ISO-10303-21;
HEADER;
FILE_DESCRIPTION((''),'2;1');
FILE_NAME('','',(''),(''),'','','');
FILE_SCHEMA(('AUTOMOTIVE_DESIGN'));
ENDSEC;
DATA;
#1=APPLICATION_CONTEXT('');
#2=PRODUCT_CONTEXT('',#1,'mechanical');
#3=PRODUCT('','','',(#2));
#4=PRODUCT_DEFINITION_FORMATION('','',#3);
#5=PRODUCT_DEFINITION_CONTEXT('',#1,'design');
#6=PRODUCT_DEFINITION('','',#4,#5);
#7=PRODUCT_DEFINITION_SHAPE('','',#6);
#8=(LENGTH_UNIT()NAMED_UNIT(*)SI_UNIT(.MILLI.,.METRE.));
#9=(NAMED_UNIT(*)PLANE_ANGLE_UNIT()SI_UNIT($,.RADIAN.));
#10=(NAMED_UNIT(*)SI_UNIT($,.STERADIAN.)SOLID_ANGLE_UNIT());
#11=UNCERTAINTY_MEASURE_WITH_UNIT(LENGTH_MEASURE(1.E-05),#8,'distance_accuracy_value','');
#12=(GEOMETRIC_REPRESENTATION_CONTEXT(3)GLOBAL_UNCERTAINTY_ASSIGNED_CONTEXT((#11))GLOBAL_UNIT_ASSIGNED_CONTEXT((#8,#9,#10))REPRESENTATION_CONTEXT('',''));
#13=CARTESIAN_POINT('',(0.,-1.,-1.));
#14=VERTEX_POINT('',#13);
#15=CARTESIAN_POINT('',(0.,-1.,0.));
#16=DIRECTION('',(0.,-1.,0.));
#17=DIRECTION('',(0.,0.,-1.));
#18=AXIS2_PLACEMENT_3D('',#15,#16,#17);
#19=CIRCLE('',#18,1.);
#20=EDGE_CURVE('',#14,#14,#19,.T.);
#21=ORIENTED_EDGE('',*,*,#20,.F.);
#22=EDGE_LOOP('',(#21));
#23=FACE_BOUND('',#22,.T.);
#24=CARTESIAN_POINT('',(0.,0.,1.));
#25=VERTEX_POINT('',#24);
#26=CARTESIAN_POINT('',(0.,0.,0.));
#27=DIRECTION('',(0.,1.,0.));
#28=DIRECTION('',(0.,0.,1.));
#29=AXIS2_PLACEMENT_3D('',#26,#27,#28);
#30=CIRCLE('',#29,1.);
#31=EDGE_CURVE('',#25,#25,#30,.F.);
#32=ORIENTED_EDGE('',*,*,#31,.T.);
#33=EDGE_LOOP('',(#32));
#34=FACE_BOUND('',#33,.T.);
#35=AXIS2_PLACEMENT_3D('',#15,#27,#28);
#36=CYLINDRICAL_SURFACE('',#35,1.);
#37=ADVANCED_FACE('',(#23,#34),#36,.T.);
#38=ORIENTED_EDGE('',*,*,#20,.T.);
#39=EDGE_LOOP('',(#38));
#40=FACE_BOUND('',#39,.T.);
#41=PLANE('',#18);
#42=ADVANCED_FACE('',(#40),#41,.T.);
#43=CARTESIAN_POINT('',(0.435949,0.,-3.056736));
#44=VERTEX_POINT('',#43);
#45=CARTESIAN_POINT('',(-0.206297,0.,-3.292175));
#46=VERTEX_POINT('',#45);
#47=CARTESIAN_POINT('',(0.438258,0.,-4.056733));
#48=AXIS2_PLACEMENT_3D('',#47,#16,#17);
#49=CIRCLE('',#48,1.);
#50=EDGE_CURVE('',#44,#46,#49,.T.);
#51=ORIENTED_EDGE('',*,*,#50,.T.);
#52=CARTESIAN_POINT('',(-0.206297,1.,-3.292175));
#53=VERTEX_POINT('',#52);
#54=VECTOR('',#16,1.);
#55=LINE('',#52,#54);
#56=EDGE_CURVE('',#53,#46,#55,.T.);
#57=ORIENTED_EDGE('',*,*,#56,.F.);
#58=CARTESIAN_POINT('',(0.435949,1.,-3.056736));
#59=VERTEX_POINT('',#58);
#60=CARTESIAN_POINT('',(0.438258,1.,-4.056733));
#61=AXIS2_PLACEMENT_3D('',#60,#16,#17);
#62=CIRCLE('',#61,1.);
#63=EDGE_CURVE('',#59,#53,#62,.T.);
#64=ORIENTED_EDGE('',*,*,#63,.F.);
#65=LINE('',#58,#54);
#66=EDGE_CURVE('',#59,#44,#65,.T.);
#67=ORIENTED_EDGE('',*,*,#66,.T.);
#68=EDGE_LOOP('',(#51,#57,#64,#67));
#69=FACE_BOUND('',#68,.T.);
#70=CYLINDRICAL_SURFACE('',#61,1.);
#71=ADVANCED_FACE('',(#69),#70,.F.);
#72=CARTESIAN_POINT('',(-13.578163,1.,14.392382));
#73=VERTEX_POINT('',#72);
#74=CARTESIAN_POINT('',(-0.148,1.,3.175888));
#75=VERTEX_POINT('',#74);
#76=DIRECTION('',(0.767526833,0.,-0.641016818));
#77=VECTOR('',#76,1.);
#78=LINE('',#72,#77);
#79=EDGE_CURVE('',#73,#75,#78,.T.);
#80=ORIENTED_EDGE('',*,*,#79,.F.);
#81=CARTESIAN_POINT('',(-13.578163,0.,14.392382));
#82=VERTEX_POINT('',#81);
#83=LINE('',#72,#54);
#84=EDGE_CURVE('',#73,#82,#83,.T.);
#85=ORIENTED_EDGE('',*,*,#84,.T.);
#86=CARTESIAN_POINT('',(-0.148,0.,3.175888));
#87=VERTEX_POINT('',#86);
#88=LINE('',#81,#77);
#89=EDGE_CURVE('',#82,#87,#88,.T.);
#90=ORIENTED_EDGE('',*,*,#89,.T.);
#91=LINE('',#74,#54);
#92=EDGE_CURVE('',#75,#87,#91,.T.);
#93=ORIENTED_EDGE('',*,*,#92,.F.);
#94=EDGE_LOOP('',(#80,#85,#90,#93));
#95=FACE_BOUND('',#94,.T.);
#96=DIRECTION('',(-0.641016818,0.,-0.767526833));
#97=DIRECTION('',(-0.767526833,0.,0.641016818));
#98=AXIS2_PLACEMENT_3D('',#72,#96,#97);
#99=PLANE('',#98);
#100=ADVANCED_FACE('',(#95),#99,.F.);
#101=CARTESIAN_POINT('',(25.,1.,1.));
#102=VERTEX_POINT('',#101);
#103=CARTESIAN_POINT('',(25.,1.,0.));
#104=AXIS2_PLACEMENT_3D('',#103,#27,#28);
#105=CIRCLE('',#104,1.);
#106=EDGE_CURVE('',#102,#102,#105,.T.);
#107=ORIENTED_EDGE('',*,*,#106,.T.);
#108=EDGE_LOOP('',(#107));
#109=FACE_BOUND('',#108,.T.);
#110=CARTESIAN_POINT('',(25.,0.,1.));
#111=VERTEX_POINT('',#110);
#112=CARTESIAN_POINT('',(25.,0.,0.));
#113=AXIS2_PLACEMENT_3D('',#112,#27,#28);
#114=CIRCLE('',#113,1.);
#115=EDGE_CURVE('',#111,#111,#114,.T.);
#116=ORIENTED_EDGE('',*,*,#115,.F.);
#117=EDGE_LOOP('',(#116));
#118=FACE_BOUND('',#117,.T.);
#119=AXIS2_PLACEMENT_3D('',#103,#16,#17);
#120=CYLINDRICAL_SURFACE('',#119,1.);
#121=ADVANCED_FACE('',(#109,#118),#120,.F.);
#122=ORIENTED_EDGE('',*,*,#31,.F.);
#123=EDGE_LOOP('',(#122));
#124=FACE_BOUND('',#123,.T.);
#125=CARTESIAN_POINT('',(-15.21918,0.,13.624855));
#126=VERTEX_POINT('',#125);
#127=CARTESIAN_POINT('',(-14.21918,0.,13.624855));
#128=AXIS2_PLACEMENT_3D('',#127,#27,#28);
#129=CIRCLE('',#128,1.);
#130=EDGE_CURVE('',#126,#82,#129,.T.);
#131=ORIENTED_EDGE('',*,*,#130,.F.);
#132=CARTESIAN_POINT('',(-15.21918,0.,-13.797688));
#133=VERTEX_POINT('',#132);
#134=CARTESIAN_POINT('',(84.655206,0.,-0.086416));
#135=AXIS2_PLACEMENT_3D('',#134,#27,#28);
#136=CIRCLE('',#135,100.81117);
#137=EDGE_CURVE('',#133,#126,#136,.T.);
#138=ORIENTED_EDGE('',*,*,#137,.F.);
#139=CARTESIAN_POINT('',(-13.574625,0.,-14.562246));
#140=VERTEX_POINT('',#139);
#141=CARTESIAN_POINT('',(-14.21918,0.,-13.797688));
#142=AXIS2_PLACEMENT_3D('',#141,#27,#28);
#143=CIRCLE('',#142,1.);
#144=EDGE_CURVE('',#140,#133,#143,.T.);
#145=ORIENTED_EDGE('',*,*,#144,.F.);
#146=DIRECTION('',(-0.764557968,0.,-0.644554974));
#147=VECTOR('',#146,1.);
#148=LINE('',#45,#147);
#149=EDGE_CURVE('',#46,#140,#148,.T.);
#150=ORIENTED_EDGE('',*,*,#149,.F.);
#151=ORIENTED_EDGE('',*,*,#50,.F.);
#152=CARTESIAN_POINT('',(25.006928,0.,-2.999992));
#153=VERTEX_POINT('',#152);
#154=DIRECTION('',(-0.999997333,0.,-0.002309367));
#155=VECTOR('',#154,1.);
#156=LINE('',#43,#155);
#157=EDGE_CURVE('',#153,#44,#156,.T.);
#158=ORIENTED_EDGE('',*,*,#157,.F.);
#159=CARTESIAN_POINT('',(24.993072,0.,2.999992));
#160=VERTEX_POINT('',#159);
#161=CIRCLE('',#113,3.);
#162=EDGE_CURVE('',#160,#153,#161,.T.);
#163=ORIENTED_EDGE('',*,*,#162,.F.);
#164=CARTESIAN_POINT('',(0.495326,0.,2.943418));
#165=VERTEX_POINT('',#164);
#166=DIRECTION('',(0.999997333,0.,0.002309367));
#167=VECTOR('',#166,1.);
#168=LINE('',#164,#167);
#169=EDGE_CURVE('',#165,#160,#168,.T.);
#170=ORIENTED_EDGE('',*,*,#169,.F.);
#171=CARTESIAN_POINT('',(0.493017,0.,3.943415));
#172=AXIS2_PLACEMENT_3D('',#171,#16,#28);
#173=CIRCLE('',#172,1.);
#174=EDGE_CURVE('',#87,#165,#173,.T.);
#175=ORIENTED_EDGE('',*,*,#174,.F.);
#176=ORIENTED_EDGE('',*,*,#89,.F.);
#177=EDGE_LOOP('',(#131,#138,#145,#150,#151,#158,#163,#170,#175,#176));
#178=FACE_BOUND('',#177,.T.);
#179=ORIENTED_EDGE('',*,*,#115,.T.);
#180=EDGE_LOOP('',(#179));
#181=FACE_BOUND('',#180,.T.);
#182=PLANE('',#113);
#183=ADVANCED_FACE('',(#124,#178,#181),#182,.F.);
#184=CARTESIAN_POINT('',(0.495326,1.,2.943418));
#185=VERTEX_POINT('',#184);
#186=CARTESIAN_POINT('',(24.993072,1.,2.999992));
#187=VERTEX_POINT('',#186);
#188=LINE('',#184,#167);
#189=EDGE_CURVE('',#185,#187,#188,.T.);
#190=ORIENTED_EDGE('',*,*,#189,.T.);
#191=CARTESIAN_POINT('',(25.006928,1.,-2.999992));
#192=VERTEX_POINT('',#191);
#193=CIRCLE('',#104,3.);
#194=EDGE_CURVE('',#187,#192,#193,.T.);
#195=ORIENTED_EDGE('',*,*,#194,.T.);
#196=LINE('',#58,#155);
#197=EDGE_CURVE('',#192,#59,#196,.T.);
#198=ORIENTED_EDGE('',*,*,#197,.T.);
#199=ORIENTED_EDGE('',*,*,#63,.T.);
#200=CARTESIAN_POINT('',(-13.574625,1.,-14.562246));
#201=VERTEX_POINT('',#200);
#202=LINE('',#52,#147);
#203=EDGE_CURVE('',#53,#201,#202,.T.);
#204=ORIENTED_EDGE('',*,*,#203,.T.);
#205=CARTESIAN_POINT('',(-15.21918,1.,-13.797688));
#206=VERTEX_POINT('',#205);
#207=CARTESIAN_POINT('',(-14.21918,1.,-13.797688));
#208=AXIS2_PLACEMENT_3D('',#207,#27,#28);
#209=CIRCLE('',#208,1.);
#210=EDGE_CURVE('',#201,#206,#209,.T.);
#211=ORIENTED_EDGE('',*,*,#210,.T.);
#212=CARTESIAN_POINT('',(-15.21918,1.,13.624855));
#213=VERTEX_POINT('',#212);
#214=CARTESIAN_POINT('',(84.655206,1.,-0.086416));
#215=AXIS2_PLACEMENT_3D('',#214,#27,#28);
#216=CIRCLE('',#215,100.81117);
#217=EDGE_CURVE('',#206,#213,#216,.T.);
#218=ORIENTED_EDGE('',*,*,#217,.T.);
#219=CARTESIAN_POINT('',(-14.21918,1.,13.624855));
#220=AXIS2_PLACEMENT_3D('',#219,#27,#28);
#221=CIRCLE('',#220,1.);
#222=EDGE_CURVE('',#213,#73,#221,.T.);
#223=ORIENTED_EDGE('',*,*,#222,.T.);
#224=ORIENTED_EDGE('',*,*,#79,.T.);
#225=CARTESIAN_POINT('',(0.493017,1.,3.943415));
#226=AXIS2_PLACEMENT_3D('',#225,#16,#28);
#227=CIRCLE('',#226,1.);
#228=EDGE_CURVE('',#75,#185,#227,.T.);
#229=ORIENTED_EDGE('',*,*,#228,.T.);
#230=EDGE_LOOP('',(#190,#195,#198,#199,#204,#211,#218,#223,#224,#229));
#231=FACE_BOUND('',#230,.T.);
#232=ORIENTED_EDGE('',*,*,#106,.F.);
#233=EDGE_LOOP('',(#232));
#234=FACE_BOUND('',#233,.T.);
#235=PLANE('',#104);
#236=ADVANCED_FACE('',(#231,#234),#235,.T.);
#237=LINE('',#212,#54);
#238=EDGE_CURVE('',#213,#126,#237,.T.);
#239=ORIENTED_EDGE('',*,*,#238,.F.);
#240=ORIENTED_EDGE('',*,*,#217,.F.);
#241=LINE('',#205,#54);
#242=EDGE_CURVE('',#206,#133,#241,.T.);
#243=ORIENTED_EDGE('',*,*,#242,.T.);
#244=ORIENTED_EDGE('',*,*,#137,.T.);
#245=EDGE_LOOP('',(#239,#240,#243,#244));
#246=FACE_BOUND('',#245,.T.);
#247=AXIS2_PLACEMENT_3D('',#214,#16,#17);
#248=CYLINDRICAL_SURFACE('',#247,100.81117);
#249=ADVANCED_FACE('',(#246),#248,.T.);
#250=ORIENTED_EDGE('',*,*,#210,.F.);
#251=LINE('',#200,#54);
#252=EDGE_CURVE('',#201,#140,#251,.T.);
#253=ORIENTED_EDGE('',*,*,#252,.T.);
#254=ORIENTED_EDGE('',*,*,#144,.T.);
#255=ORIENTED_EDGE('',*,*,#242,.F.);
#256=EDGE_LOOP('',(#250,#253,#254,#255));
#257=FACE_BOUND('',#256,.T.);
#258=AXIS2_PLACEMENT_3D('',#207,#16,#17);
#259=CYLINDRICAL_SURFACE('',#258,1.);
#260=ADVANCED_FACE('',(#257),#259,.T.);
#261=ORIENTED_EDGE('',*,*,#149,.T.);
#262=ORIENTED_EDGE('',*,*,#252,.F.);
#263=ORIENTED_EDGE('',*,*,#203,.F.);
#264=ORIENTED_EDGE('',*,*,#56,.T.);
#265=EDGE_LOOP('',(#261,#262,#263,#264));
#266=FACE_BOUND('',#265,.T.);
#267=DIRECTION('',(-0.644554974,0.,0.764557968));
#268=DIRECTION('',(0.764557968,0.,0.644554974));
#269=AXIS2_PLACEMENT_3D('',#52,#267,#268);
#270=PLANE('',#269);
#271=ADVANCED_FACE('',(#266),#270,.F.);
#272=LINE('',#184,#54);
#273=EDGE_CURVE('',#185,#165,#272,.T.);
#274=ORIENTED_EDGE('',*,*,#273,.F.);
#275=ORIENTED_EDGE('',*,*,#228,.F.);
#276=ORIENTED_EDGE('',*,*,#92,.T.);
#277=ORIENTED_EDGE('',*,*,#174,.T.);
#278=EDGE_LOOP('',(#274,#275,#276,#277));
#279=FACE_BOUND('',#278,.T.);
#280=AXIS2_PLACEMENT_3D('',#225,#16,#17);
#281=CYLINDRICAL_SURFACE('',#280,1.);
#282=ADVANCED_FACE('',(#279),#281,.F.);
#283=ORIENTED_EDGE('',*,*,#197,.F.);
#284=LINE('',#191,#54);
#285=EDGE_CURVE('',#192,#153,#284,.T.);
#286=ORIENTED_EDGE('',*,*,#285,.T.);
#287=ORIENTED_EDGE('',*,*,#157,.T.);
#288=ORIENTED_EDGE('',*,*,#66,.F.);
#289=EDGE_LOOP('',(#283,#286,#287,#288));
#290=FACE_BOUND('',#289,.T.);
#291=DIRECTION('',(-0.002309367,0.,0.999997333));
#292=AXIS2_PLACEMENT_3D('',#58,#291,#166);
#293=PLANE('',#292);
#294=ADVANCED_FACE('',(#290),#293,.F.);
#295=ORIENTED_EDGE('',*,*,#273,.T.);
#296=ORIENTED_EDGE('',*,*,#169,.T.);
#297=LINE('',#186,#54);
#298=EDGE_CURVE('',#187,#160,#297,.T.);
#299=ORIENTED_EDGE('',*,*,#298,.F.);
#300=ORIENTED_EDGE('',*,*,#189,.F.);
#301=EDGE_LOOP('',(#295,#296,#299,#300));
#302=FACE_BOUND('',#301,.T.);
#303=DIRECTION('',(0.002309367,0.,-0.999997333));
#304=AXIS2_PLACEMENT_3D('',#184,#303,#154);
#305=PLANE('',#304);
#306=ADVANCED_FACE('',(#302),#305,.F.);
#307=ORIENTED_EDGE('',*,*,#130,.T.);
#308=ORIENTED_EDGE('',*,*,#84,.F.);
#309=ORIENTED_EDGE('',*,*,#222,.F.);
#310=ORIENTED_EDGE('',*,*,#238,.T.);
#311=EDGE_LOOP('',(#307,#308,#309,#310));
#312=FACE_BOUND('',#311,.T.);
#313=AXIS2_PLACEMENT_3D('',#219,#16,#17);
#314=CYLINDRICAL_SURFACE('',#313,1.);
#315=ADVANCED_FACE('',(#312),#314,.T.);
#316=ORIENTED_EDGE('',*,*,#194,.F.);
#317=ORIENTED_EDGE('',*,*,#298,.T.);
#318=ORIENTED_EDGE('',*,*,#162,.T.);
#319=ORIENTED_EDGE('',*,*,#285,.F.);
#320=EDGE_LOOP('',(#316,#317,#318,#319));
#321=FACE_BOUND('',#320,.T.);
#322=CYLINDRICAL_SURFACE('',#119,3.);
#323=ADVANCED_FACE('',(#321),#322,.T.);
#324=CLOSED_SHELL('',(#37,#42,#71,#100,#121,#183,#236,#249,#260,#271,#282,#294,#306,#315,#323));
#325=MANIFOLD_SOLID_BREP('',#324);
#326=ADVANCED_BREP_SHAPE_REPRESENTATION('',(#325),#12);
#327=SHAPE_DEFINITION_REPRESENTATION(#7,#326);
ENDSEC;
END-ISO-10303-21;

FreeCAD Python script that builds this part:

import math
import FreeCAD as App
import Part
import Sketcher

V = App.Vector

doc = App.newDocument("Part")
body = doc.addObject("PartDesign::Body", "Body")

sketch1 = doc.addObject("Sketcher::SketchObject", "Sketch")
body.addObject(sketch1)
sketch1.AttachmentSupport = (doc.XZ_Plane, [""])
sketch1.MapMode = "FlatFace"
sketch1.addGeometry(Part.LineSegment(V(25, -3, 0), V(0.4, -3.1, 0)), False)
sketch1.addGeometry(Part.ArcOfCircle(Part.Circle(V(0.4, -4.1, 0), V(0, 0, 1), 1), math.radians(90), math.radians(130)), False)
sketch1.addGeometry(Part.LineSegment(V(-0.2, -3.3, 0), V(-13.6, -14.6, 0)), False)
sketch1.addGeometry(Part.ArcOfCircle(Part.Circle(V(-14.2, -13.8, 0), V(0, 0, 1), 1), math.radians(180), math.radians(310)), False)
sketch1.addGeometry(Part.ArcOfCircle(Part.Circle(V(84.7, -0.1, 0), V(0, 0, 1), 100.8), math.radians(172.18), math.radians(187.82)), False)
sketch1.addGeometry(Part.ArcOfCircle(Part.Circle(V(-14.2, 13.6, 0), V(0, 0, 1), 1), math.radians(50), math.radians(180)), False)
sketch1.addGeometry(Part.LineSegment(V(-13.6, 14.4, 0), V(-0.1, 3.2, 0)), False)
sketch1.addGeometry(Part.ArcOfCircle(Part.Circle(V(0.5, 3.9, 0), V(0, 0, 1), 1), math.radians(-130), math.radians(-90)), False)
sketch1.addGeometry(Part.LineSegment(V(0.5, 2.9, 0), V(25, 3, 0)), False)
sketch1.addGeometry(Part.ArcOfCircle(Part.Circle(V(25, 0, 0), V(0, 0, 1), 3), math.radians(-90), math.radians(90)), False)
sketch1.addGeometry(Part.Circle(V(25, 0, 0), V(0, 0, 1), 1), False)
sketch1.addConstraint(Sketcher.Constraint("Tangent", 0, 2, 1, 1))
sketch1.addConstraint(Sketcher.Constraint("Tangent", 1, 2, 2, 1))
sketch1.addConstraint(Sketcher.Constraint("Tangent", 2, 2, 3, 2))
sketch1.addConstraint(Sketcher.Constraint("Coincident", 3, 1, 4, 2))
sketch1.addConstraint(Sketcher.Constraint("Coincident", 4, 1, 5, 2))
sketch1.addConstraint(Sketcher.Constraint("Tangent", 5, 1, 6, 1))
sketch1.addConstraint(Sketcher.Constraint("Tangent", 6, 2, 7, 1))
sketch1.addConstraint(Sketcher.Constraint("Tangent", 7, 2, 8, 1))
sketch1.addConstraint(Sketcher.Constraint("Tangent", 8, 2, 9, 2))
sketch1.addConstraint(Sketcher.Constraint("Tangent", 9, 1, 0, 1))
sketch1.addConstraint(Sketcher.Constraint("Coincident", 10, 3, 9, 3))
sketch1.addConstraint(Sketcher.Constraint("Equal", 1, 3))
sketch1.addConstraint(Sketcher.Constraint("Equal", 3, 5))
sketch1.addConstraint(Sketcher.Constraint("Equal", 5, 7))
sketch1.addConstraint(Sketcher.Constraint("Equal", 7, 10))
sketch1.addConstraint(Sketcher.Constraint("PointOnObject", 9, 3, -1))
sketch1.addConstraint(Sketcher.Constraint("Parallel", 0, 8))
sketch1.addConstraint(Sketcher.Constraint("Horizontal", 5, 3, 4, 1))
sketch1.addConstraint(Sketcher.Constraint("Vertical", 3, 3, 5, 3))
sketch1.addConstraint(Sketcher.Constraint("Diameter", 10, 2.0))
sketch1.addConstraint(Sketcher.Constraint("Radius", 9, 3.0))
sketch1.addConstraint(Sketcher.Constraint("DistanceX", -1, 1, 9, 3, 25.0))
sketch1.addConstraint(Sketcher.Constraint("Radius", 4, 100.811169))
sketch1.addConstraint(Sketcher.Constraint("DistanceX", 6, 2, -1, 1, 0.148))
sketch1.addConstraint(Sketcher.Constraint("Distance", 2, 17.485042))
sketch1.addConstraint(Sketcher.Constraint("Distance", 6, 17.497972))
sketch1.addConstraint(Sketcher.Constraint("Distance", 8, 24.497811))
sketch1.addConstraint(Sketcher.Constraint("DistanceX", -1, 1, 1, 3, 0.438258))
sketch1.addConstraint(Sketcher.Constraint("DistanceX", 3, 3, -1, 1, 14.21918))
sketch1.addConstraint(Sketcher.Constraint("DistanceY", 3, 3, 4, 3, 13.711272))
pad1 = doc.addObject("PartDesign::Pad", "Pad")
body.addObject(pad1)
pad1.Profile = sketch1
pad1.Length = 1
pad1.Reversed = True

sketch2 = doc.addObject("Sketcher::SketchObject", "Sketch001")
body.addObject(sketch2)
sketch2.AttachmentSupport = (doc.XZ_Plane, [""])
sketch2.MapMode = "FlatFace"
sketch2.addGeometry(Part.Circle(V(0, 0, 0), V(0, 0, 1), 1), False)
sketch2.addConstraint(Sketcher.Constraint("Coincident", 0, 3, -1, 1))
sketch2.addConstraint(Sketcher.Constraint("Diameter", 0, 2.0))
pad2 = doc.addObject("PartDesign::Pad", "Pad001")
body.addObject(pad2)
pad2.Profile = sketch2
pad2.Length = 1

doc.recompute()
